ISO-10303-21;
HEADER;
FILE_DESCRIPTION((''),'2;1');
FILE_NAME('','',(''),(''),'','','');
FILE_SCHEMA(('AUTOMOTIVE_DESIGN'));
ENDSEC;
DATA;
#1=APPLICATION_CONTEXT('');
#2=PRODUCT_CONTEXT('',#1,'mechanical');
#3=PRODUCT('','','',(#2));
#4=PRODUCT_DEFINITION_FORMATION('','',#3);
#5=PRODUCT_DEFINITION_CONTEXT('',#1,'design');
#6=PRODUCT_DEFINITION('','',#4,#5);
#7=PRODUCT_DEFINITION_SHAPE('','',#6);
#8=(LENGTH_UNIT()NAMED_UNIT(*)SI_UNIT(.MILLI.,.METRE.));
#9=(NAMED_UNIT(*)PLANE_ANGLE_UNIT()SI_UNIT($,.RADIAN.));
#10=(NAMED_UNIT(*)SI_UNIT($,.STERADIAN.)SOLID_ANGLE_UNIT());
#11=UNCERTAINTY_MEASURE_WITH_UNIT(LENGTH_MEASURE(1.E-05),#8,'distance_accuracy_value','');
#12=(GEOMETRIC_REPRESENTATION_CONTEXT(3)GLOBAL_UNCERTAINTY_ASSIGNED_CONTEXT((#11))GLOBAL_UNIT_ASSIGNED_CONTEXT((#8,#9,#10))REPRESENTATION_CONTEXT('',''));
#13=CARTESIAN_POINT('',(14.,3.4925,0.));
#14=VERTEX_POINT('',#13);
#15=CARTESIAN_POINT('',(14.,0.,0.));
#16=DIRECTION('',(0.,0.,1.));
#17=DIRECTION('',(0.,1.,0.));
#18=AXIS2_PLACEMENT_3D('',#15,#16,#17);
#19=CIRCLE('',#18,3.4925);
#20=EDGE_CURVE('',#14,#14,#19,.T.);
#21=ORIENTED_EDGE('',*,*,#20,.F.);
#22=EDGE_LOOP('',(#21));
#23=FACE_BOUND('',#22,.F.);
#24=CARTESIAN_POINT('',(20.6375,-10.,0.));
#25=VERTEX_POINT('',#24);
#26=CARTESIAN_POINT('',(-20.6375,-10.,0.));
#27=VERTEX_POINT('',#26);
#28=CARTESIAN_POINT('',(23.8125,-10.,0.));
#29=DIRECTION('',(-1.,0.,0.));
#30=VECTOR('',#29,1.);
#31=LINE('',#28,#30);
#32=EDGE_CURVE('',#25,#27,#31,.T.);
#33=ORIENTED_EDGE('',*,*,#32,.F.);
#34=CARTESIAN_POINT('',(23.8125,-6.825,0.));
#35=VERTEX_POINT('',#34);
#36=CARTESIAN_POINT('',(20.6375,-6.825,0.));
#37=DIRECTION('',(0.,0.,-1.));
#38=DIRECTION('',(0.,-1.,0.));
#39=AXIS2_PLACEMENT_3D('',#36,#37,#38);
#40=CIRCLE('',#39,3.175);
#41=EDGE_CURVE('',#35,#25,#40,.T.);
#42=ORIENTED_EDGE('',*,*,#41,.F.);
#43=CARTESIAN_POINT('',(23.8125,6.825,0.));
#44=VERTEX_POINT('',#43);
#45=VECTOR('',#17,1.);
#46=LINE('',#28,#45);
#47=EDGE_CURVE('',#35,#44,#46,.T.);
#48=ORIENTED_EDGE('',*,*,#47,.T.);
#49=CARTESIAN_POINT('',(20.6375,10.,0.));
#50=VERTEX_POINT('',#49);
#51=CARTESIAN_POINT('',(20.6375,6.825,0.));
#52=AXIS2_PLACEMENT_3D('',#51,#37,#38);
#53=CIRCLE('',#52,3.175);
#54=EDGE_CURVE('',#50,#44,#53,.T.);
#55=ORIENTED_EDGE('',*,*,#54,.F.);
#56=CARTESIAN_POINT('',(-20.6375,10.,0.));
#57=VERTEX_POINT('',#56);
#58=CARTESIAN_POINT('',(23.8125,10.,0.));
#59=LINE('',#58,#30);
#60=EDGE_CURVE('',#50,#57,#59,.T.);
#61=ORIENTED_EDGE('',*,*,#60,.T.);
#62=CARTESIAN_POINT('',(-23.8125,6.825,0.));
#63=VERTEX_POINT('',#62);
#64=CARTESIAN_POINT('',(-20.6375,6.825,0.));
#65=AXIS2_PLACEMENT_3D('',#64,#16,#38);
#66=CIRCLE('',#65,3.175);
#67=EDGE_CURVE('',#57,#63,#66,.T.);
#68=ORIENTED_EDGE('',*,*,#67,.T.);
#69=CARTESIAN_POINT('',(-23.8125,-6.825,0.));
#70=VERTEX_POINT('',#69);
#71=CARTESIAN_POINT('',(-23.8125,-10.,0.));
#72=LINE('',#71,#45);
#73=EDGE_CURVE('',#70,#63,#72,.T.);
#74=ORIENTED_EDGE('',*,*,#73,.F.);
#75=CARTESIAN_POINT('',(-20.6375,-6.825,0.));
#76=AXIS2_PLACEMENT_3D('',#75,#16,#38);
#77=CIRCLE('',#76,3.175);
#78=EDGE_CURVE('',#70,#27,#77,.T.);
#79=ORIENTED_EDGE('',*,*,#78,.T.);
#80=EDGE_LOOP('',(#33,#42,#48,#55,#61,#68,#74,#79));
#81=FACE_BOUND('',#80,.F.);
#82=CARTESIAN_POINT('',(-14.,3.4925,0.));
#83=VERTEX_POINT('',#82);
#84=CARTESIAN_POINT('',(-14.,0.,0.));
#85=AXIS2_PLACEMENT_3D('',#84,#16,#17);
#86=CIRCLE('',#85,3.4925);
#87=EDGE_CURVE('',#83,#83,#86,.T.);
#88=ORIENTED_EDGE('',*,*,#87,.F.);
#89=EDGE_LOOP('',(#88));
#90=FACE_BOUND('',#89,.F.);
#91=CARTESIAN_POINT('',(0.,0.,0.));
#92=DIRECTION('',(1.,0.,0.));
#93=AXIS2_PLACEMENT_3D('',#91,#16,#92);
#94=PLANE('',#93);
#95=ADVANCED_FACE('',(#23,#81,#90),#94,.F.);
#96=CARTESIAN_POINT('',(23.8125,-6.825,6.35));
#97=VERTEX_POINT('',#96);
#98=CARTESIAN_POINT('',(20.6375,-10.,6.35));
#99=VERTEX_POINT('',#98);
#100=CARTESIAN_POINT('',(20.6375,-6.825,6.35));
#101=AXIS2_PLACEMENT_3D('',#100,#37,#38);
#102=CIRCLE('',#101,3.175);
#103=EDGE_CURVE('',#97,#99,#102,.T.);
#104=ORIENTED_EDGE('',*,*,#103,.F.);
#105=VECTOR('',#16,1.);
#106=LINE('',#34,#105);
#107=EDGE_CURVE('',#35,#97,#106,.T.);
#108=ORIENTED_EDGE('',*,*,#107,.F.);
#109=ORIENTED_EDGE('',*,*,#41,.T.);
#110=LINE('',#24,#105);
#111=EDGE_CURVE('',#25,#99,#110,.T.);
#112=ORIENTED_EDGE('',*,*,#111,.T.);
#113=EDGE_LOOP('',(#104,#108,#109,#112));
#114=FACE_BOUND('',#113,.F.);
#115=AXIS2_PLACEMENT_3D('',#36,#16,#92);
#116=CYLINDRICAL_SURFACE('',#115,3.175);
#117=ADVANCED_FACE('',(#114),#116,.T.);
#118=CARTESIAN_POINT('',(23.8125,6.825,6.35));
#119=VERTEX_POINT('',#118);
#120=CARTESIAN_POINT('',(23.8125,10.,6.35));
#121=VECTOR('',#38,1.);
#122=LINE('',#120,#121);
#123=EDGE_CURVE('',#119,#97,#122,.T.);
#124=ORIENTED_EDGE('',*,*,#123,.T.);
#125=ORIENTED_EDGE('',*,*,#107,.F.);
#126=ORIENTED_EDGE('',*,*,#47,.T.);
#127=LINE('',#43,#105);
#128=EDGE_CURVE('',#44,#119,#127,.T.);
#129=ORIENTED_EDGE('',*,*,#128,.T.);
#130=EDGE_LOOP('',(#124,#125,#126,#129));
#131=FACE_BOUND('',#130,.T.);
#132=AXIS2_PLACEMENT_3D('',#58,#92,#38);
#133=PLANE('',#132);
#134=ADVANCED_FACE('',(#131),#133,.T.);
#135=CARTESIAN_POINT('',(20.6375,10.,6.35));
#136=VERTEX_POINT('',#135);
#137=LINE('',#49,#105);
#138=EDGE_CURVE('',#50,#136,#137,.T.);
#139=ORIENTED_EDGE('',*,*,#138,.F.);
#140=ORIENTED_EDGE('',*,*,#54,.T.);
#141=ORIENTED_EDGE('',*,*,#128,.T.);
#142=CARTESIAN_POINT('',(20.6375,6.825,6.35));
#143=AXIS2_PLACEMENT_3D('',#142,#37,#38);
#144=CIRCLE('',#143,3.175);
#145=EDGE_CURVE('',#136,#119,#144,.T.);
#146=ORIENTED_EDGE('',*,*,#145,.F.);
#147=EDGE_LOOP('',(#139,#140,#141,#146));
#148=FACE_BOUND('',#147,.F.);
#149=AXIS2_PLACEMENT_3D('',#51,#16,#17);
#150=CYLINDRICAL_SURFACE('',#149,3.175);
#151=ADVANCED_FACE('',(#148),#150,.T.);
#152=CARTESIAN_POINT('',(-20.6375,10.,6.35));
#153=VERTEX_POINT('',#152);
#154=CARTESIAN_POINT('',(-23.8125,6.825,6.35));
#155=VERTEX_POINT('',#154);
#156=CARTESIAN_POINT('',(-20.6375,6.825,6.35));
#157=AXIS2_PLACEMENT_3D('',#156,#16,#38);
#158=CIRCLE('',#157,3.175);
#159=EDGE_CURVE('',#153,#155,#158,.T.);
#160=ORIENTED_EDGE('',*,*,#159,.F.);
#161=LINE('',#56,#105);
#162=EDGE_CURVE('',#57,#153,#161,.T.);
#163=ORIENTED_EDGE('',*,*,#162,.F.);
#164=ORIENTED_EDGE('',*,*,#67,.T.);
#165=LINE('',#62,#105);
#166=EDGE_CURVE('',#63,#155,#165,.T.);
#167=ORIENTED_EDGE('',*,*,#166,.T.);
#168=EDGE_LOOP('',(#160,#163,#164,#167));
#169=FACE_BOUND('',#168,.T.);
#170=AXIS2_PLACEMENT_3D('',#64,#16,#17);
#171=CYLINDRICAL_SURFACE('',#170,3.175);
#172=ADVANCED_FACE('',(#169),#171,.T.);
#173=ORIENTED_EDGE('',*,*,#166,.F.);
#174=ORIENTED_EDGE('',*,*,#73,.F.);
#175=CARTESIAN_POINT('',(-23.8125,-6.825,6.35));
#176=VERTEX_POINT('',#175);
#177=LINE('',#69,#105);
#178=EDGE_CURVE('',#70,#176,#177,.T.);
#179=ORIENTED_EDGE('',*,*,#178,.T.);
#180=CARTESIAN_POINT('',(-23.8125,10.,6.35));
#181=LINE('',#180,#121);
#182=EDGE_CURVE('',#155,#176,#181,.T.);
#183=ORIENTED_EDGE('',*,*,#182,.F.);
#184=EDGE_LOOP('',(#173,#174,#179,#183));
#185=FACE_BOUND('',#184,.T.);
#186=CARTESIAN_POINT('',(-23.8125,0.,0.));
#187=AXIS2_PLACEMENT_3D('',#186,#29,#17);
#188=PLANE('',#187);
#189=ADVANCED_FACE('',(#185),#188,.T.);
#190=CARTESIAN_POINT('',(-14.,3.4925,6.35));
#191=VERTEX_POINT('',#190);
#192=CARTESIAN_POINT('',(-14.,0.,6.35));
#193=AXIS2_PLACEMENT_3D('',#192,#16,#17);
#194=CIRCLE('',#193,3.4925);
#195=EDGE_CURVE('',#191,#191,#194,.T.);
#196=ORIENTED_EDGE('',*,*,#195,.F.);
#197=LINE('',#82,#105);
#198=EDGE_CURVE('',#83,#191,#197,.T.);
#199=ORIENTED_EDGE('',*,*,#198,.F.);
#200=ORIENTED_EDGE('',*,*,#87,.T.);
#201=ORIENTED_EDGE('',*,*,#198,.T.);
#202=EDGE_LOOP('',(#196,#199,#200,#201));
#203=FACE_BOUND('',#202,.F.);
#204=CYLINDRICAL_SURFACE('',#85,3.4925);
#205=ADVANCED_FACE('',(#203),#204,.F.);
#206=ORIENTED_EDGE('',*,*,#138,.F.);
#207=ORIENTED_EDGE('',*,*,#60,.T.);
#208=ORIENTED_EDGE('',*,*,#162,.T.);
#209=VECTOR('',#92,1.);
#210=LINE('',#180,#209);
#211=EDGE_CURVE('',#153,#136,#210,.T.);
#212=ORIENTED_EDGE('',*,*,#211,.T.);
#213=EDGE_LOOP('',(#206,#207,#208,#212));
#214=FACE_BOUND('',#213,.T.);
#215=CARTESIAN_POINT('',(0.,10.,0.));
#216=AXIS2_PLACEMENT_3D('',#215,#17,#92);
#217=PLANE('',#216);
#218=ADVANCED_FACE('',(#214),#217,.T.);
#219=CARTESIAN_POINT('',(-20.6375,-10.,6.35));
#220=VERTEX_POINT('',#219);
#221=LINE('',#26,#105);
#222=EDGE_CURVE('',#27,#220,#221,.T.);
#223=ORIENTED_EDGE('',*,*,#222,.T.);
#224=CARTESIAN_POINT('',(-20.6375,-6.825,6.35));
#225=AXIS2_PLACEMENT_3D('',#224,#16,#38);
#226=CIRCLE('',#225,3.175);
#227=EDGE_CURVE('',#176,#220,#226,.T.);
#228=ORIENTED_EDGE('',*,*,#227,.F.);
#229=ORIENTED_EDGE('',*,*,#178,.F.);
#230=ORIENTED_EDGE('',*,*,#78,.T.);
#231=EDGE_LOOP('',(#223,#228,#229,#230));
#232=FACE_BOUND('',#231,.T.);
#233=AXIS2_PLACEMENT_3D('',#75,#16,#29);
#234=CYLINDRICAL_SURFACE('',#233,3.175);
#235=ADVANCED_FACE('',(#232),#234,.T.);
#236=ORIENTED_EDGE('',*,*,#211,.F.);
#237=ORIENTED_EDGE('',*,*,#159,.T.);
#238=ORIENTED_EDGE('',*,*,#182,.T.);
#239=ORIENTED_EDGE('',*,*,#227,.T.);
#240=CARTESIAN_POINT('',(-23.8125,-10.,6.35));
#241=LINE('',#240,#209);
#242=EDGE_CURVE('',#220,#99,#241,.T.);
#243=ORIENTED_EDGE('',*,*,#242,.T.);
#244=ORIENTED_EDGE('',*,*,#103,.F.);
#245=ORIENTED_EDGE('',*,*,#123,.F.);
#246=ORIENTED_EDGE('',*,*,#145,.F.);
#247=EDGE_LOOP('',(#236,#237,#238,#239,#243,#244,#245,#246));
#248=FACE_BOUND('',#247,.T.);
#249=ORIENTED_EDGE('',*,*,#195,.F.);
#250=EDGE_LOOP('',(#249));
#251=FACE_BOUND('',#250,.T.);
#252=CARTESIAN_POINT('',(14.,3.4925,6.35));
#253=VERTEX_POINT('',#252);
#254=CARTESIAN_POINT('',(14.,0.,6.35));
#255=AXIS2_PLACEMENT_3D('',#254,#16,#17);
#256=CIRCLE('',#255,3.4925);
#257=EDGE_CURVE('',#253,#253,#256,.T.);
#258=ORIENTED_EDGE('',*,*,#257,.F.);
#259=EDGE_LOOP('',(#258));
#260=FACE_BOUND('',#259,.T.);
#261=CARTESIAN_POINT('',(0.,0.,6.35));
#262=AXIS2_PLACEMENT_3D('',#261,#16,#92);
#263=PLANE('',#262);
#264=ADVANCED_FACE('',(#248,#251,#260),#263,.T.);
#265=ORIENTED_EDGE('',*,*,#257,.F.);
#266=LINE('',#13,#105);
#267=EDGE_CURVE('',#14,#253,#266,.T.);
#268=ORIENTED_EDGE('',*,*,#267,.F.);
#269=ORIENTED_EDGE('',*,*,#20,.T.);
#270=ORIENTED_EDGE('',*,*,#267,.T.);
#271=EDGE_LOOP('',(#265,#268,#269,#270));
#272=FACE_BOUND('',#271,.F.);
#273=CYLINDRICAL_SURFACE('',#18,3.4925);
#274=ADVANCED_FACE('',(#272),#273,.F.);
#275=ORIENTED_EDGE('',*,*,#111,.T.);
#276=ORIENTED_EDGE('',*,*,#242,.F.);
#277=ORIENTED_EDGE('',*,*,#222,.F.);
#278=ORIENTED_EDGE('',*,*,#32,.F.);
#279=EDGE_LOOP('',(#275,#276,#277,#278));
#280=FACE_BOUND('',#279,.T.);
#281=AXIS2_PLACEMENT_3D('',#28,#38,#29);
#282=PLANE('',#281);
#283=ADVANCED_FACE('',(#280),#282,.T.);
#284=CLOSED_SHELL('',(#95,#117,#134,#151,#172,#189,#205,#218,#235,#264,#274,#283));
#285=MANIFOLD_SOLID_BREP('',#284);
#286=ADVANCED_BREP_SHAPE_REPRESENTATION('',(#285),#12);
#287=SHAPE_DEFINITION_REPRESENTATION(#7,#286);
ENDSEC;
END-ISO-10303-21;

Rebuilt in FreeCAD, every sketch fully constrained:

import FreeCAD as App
import Part
import Sketcher
Q = App.Units.Quantity


def edges_at(feature, points):
    """Names of the edges that pass closest to the given points."""
    edges = feature.Shape.Edges
    near = lambda p: min(range(len(edges)), key=lambda i: edges[i].distToShape(Part.Vertex(*p))[0])
    return sorted({f"Edge{near(p) + 1}" for p in points})

doc = App.newDocument("Part")
body = doc.addObject("PartDesign::Body", "Body")

sketch1 = body.newObject("Sketcher::SketchObject", "Sketch")
sketch1.AttachmentSupport = (doc.getObject("XY_Plane"), [""])
sketch1.MapMode = "FlatFace"
sketch1.addGeometry([
    Part.LineSegment(App.Vector(23.8125, 10, 0), App.Vector(-23.8125, 10, 0)),
    Part.LineSegment(App.Vector(-23.8125, 10, 0), App.Vector(-23.8125, -10, 0)),
    Part.LineSegment(App.Vector(-23.8125, -10, 0), App.Vector(23.8125, -10, 0)),
    Part.LineSegment(App.Vector(23.8125, -10, 0), App.Vector(23.8125, 10, 0)),
], False)
sketch1.addConstraint([
    Sketcher.Constraint("Coincident", 0, 2, 1, 1),
    Sketcher.Constraint("Coincident", 1, 2, 2, 1),
    Sketcher.Constraint("Coincident", 2, 2, 3, 1),
    Sketcher.Constraint("Coincident", 3, 2, 0, 1),
    Sketcher.Constraint("Horizontal", 0),
    Sketcher.Constraint("Vertical", 1),
    Sketcher.Constraint("Horizontal", 2),
    Sketcher.Constraint("Vertical", 3),
    Sketcher.Constraint("Symmetric", 0, 2, 2, 2, -1, 1),
    Sketcher.Constraint("DistanceX", 0, 2, 0, 1, Q("1.875 in")),
    Sketcher.Constraint("DistanceY", 1, 2, 1, 1, Q("0.7874 in")),
])
pad1 = body.newObject("PartDesign::Pad", "Pad")
pad1.Profile = sketch1
pad1.Length = Q("0.25 in")

sketch2 = body.newObject("Sketcher::SketchObject", "Sketch001")
sketch2.AttachmentSupport = (doc.getObject("XY_Plane"), [""])
sketch2.MapMode = "FlatFace"
sketch2.addGeometry([
    Part.Circle(App.Vector(-14, 0, 0), App.Vector(0, 0, 1), 3.4925),
    Part.Circle(App.Vector(14, 0, 0), App.Vector(0, 0, 1), 3.4925),
], False)
sketch2.addConstraint([
    Sketcher.Constraint("Equal", 0, 1),
    Sketcher.Constraint("Symmetric", 0, 3, 1, 3, -1, 1),
    Sketcher.Constraint("PointOnObject", 0, 3, -1),
    Sketcher.Constraint("Diameter", 0, Q("0.275 in")),
    Sketcher.Constraint("DistanceX", 0, 3, -1, 1, 14.0),
])
doc.recompute()
hole = body.newObject("PartDesign::Hole", "Hole")
hole.Profile = sketch2
hole.ThreadType = "None"
hole.Diameter = Q("0.275 in")
hole.DepthType = "ThroughAll"
hole.Reversed = True
doc.recompute()

fillet = body.newObject("PartDesign::Fillet", "Fillet")
fillet.Base = (hole, edges_at(hole, [
    (23.812, 10, 3.175),
    (23.812, -10, 3.175),
    (-23.812, -10, 3.175),
    (-23.812, 10, 3.175),
]))
fillet.Radius = Q("0.125 in")

doc.recompute()
